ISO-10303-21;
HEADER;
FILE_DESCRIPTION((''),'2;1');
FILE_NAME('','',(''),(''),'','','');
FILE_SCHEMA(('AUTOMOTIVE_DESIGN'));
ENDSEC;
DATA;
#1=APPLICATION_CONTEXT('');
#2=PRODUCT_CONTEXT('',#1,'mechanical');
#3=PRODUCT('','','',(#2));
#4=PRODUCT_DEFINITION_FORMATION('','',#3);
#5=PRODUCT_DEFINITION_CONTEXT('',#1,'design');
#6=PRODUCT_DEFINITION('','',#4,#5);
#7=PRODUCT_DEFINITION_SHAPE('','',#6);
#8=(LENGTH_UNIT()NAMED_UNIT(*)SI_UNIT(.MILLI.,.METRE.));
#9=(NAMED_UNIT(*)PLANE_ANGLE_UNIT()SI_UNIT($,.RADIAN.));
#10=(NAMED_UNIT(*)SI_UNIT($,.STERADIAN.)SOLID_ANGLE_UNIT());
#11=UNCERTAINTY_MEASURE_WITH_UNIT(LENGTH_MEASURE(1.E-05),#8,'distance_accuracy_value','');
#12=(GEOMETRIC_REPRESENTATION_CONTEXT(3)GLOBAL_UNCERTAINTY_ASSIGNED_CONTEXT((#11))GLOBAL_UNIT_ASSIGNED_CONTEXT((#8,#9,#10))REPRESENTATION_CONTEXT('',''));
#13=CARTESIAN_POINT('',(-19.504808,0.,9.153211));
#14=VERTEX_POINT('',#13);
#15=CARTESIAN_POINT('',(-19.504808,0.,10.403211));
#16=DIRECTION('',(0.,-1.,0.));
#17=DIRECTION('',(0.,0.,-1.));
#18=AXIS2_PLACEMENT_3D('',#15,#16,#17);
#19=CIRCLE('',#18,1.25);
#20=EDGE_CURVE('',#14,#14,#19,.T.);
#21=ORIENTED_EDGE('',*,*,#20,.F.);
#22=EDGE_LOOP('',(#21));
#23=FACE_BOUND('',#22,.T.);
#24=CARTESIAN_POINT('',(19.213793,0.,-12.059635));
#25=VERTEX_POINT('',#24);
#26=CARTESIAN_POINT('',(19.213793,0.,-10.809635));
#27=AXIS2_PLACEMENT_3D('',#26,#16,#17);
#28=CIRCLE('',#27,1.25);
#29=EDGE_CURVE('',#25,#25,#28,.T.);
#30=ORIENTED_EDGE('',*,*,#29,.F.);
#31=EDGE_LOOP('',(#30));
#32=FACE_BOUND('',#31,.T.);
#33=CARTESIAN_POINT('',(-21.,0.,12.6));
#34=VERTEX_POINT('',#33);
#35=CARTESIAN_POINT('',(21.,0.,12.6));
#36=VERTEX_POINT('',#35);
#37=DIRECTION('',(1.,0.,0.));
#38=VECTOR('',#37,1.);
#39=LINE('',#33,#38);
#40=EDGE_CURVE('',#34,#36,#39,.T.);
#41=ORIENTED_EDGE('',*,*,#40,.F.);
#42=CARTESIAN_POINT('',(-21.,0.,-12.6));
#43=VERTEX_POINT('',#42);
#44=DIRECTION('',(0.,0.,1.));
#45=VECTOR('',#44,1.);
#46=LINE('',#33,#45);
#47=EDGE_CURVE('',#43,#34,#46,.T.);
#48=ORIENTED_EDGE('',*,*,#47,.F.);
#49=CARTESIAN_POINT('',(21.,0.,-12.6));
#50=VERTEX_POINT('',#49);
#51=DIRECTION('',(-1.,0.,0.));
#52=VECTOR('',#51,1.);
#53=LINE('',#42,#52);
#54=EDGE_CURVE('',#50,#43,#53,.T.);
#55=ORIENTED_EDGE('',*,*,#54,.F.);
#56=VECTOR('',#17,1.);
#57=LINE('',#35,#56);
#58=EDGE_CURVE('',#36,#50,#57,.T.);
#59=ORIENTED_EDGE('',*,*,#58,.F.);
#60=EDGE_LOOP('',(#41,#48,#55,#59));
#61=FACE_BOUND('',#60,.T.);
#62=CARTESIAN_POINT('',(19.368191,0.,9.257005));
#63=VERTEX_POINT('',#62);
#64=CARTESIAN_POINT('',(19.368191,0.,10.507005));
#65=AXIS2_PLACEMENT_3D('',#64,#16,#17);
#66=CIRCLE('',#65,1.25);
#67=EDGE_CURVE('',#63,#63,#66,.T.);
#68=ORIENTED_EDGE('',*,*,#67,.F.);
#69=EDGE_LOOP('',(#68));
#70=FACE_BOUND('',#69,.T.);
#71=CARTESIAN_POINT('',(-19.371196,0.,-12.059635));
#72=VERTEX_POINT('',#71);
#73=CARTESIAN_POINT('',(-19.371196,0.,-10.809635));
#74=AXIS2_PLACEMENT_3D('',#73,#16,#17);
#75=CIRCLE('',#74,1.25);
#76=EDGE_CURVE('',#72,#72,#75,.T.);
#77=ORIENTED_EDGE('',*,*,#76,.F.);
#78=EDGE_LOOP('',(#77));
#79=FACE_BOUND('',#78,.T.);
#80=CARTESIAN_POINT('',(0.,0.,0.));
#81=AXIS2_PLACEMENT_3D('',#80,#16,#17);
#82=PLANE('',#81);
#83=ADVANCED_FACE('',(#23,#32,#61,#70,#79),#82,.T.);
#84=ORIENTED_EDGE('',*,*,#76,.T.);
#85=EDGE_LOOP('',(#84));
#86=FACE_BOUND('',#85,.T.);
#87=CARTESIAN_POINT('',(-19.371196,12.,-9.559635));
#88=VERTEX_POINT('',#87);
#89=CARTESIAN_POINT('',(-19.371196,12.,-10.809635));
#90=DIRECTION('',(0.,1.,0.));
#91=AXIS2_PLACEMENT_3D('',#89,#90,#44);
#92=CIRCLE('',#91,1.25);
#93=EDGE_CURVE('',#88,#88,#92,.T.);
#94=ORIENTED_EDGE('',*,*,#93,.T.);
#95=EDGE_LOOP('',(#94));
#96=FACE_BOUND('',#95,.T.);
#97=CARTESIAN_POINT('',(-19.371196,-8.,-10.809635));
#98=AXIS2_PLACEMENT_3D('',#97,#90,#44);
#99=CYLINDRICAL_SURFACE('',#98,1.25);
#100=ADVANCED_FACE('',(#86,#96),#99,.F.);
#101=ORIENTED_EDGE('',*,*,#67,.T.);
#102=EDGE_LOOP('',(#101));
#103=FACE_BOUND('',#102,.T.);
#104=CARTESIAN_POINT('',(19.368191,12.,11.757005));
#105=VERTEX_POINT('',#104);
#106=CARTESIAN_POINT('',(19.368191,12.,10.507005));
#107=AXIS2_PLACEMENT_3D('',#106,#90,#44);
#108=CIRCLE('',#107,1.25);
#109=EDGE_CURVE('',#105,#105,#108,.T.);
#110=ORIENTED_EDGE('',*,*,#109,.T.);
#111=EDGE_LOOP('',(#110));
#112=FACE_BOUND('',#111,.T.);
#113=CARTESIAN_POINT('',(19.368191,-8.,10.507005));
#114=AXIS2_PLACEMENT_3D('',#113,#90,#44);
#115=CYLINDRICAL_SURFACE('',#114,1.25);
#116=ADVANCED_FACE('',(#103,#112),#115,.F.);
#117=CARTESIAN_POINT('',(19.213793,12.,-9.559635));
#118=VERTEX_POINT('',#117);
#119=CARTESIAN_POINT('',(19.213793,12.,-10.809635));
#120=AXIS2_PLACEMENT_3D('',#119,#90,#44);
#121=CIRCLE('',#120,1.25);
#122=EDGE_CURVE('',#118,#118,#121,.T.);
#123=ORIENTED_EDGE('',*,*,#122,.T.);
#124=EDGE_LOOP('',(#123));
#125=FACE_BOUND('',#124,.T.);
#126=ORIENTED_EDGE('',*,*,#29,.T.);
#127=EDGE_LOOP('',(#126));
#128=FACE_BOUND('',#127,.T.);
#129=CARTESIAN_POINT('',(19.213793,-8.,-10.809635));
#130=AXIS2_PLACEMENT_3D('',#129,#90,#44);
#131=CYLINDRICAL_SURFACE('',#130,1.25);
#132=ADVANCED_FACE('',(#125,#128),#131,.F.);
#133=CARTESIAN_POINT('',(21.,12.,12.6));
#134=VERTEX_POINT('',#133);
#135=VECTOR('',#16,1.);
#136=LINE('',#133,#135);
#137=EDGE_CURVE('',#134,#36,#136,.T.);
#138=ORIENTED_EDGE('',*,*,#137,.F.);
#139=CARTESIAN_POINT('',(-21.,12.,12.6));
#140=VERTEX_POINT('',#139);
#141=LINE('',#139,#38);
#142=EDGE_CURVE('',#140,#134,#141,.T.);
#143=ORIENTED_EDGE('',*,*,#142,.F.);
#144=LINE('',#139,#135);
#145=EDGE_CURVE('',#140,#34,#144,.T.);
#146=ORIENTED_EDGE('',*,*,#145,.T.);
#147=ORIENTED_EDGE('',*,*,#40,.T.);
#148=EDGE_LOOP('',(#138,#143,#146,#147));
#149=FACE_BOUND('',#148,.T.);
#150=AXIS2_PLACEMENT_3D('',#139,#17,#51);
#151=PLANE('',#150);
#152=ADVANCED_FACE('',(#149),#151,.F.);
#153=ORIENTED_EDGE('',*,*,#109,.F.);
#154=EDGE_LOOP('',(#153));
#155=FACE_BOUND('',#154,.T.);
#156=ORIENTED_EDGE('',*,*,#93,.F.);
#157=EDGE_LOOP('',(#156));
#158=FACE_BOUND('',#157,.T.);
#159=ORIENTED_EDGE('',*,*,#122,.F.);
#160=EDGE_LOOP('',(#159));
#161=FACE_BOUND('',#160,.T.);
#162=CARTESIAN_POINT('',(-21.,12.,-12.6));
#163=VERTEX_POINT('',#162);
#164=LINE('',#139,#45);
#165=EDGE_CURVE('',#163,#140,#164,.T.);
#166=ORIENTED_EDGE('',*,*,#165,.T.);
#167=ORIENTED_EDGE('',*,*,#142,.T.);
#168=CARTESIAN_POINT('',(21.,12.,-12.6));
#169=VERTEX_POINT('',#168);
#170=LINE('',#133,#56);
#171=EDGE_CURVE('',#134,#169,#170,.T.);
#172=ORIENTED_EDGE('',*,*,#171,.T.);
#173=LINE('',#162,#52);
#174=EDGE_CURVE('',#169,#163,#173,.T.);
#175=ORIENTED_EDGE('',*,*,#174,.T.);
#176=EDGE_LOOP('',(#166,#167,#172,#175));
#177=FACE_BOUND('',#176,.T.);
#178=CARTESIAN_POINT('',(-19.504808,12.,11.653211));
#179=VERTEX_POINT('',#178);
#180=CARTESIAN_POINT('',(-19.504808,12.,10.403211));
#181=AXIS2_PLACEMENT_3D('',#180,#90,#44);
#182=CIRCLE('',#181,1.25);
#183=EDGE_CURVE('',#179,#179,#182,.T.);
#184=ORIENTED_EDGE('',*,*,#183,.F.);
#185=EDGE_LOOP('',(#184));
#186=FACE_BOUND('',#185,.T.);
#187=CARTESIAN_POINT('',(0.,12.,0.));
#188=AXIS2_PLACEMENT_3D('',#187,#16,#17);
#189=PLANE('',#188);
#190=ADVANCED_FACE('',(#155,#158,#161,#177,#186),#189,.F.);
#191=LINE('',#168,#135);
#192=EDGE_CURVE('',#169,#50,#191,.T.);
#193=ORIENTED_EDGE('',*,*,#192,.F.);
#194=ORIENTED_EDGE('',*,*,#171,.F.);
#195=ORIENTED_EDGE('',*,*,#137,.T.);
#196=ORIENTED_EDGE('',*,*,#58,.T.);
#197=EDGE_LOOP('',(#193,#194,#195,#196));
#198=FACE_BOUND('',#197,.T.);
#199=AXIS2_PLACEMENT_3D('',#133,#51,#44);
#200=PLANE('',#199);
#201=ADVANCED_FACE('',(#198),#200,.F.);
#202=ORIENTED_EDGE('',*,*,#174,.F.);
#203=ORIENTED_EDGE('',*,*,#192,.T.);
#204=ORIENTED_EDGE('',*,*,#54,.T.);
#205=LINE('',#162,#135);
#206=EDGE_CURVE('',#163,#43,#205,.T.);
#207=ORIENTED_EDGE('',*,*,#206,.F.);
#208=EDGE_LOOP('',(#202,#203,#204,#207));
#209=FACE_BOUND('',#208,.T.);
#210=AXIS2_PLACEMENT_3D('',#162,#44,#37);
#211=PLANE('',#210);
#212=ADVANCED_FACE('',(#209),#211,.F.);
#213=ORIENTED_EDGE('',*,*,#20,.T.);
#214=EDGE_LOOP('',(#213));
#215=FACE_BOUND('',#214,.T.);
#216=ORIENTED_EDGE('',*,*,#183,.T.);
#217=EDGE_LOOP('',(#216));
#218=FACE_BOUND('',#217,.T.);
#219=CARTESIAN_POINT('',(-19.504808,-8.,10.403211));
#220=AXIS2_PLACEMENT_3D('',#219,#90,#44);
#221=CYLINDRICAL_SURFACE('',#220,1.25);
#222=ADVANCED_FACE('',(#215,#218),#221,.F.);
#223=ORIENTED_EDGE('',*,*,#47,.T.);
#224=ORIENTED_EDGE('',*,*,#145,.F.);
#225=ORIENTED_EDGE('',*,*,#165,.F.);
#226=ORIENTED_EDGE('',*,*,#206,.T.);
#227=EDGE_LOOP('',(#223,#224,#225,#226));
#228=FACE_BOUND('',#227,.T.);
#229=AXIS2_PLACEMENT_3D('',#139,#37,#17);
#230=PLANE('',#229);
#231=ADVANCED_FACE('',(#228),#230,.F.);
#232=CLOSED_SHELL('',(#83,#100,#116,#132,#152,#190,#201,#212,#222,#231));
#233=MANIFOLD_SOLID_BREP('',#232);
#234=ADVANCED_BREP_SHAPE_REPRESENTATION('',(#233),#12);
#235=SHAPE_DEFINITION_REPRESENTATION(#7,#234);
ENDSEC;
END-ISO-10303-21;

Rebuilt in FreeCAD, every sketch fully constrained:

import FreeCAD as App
import Part
import Sketcher
from FreeCAD import Vector

doc = App.newDocument("Part")
body = doc.addObject("PartDesign::Body", "Body")

# Sketch on XZ plane
sketch1 = doc.addObject("Sketcher::SketchObject", "Sketch")
body.addObject(sketch1)
sketch1.AttachmentSupport = (doc.XZ_Plane, [""])
sketch1.MapMode = "FlatFace"
sketch1.addGeometry([
    Part.LineSegment(Vector(-21, -13, 0), Vector(-21, 13, 0)),
    Part.LineSegment(Vector(-21, 13, 0), Vector(21, 13, 0)),
    Part.LineSegment(Vector(21, 13, 0), Vector(21, -13, 0)),
    Part.LineSegment(Vector(21, -13, 0), Vector(-21, -13, 0)),
], False)
sketch1.addConstraint([
    Sketcher.Constraint("Coincident", 0, 2, 1, 1),
    Sketcher.Constraint("Coincident", 1, 2, 2, 1),
    Sketcher.Constraint("Coincident", 2, 2, 3, 1),
    Sketcher.Constraint("Coincident", 3, 2, 0, 1),
    Sketcher.Constraint("Vertical", 0),
    Sketcher.Constraint("Horizontal", 1),
    Sketcher.Constraint("Vertical", 2),
    Sketcher.Constraint("Horizontal", 3),
    Sketcher.Constraint("Symmetric", 0, 2, 2, 2, -1, 1),
    Sketcher.Constraint("DistanceX", 1, 1, 1, 2, 42.0),
    Sketcher.Constraint("DistanceY", 0, 1, 0, 2, 25.2),
])
pad1 = doc.addObject("PartDesign::Pad", "Pad")
body.addObject(pad1)
pad1.Profile = sketch1
pad1.Length = 12
pad1.Reversed = True

# Sketch on XZ plane
sketch2 = doc.addObject("Sketcher::SketchObject", "Sketch001")
body.addObject(sketch2)
sketch2.AttachmentSupport = (doc.XZ_Plane, [""])
sketch2.MapMode = "FlatFace"
sketch2.AttachmentOffset = App.Placement(Vector(0, 0, -12), App.Rotation())
sketch2.addGeometry([
    Part.Circle(Vector(-19.4, -10.8, 0), Vector(0, 0, 1), 1.2),
    Part.Circle(Vector(-19.5, 10.4, 0), Vector(0, 0, 1), 1.2),
    Part.Circle(Vector(19.4, 10.5, 0), Vector(0, 0, 1), 1.2),
    Part.Circle(Vector(19.2, -10.8, 0), Vector(0, 0, 1), 1.2),
], False)
sketch2.addConstraint([
    Sketcher.Constraint("Equal", 0, 1),
    Sketcher.Constraint("Equal", 1, 2),
    Sketcher.Constraint("Equal", 2, 3),
    Sketcher.Constraint("Horizontal", 0, 3, 3, 3),
    Sketcher.Constraint("Diameter", 0, 2.5),
    Sketcher.Constraint("DistanceX", 1, 3, 2, 3, 38.872999),
    Sketcher.Constraint("DistanceX", 3, 3, 2, 3, 0.154399),
    Sketcher.Constraint("DistanceY", -1, 1, 1, 3, 10.403211),
    Sketcher.Constraint("DistanceX", -1, 1, 2, 3, 19.368191),
    Sketcher.Constraint("DistanceX", 1, 3, 0, 3, 0.133612),
    Sketcher.Constraint("DistanceY", 0, 3, 2, 3, 21.316641),
    Sketcher.Constraint("DistanceY", 0, 3, -1, 1, 10.809635),
])
pocket1 = doc.addObject("PartDesign::Pocket", "Pocket")
body.addObject(pocket1)
pocket1.Profile = sketch2
pocket1.Length = 20
pocket1.Reversed = True

doc.recompute()
